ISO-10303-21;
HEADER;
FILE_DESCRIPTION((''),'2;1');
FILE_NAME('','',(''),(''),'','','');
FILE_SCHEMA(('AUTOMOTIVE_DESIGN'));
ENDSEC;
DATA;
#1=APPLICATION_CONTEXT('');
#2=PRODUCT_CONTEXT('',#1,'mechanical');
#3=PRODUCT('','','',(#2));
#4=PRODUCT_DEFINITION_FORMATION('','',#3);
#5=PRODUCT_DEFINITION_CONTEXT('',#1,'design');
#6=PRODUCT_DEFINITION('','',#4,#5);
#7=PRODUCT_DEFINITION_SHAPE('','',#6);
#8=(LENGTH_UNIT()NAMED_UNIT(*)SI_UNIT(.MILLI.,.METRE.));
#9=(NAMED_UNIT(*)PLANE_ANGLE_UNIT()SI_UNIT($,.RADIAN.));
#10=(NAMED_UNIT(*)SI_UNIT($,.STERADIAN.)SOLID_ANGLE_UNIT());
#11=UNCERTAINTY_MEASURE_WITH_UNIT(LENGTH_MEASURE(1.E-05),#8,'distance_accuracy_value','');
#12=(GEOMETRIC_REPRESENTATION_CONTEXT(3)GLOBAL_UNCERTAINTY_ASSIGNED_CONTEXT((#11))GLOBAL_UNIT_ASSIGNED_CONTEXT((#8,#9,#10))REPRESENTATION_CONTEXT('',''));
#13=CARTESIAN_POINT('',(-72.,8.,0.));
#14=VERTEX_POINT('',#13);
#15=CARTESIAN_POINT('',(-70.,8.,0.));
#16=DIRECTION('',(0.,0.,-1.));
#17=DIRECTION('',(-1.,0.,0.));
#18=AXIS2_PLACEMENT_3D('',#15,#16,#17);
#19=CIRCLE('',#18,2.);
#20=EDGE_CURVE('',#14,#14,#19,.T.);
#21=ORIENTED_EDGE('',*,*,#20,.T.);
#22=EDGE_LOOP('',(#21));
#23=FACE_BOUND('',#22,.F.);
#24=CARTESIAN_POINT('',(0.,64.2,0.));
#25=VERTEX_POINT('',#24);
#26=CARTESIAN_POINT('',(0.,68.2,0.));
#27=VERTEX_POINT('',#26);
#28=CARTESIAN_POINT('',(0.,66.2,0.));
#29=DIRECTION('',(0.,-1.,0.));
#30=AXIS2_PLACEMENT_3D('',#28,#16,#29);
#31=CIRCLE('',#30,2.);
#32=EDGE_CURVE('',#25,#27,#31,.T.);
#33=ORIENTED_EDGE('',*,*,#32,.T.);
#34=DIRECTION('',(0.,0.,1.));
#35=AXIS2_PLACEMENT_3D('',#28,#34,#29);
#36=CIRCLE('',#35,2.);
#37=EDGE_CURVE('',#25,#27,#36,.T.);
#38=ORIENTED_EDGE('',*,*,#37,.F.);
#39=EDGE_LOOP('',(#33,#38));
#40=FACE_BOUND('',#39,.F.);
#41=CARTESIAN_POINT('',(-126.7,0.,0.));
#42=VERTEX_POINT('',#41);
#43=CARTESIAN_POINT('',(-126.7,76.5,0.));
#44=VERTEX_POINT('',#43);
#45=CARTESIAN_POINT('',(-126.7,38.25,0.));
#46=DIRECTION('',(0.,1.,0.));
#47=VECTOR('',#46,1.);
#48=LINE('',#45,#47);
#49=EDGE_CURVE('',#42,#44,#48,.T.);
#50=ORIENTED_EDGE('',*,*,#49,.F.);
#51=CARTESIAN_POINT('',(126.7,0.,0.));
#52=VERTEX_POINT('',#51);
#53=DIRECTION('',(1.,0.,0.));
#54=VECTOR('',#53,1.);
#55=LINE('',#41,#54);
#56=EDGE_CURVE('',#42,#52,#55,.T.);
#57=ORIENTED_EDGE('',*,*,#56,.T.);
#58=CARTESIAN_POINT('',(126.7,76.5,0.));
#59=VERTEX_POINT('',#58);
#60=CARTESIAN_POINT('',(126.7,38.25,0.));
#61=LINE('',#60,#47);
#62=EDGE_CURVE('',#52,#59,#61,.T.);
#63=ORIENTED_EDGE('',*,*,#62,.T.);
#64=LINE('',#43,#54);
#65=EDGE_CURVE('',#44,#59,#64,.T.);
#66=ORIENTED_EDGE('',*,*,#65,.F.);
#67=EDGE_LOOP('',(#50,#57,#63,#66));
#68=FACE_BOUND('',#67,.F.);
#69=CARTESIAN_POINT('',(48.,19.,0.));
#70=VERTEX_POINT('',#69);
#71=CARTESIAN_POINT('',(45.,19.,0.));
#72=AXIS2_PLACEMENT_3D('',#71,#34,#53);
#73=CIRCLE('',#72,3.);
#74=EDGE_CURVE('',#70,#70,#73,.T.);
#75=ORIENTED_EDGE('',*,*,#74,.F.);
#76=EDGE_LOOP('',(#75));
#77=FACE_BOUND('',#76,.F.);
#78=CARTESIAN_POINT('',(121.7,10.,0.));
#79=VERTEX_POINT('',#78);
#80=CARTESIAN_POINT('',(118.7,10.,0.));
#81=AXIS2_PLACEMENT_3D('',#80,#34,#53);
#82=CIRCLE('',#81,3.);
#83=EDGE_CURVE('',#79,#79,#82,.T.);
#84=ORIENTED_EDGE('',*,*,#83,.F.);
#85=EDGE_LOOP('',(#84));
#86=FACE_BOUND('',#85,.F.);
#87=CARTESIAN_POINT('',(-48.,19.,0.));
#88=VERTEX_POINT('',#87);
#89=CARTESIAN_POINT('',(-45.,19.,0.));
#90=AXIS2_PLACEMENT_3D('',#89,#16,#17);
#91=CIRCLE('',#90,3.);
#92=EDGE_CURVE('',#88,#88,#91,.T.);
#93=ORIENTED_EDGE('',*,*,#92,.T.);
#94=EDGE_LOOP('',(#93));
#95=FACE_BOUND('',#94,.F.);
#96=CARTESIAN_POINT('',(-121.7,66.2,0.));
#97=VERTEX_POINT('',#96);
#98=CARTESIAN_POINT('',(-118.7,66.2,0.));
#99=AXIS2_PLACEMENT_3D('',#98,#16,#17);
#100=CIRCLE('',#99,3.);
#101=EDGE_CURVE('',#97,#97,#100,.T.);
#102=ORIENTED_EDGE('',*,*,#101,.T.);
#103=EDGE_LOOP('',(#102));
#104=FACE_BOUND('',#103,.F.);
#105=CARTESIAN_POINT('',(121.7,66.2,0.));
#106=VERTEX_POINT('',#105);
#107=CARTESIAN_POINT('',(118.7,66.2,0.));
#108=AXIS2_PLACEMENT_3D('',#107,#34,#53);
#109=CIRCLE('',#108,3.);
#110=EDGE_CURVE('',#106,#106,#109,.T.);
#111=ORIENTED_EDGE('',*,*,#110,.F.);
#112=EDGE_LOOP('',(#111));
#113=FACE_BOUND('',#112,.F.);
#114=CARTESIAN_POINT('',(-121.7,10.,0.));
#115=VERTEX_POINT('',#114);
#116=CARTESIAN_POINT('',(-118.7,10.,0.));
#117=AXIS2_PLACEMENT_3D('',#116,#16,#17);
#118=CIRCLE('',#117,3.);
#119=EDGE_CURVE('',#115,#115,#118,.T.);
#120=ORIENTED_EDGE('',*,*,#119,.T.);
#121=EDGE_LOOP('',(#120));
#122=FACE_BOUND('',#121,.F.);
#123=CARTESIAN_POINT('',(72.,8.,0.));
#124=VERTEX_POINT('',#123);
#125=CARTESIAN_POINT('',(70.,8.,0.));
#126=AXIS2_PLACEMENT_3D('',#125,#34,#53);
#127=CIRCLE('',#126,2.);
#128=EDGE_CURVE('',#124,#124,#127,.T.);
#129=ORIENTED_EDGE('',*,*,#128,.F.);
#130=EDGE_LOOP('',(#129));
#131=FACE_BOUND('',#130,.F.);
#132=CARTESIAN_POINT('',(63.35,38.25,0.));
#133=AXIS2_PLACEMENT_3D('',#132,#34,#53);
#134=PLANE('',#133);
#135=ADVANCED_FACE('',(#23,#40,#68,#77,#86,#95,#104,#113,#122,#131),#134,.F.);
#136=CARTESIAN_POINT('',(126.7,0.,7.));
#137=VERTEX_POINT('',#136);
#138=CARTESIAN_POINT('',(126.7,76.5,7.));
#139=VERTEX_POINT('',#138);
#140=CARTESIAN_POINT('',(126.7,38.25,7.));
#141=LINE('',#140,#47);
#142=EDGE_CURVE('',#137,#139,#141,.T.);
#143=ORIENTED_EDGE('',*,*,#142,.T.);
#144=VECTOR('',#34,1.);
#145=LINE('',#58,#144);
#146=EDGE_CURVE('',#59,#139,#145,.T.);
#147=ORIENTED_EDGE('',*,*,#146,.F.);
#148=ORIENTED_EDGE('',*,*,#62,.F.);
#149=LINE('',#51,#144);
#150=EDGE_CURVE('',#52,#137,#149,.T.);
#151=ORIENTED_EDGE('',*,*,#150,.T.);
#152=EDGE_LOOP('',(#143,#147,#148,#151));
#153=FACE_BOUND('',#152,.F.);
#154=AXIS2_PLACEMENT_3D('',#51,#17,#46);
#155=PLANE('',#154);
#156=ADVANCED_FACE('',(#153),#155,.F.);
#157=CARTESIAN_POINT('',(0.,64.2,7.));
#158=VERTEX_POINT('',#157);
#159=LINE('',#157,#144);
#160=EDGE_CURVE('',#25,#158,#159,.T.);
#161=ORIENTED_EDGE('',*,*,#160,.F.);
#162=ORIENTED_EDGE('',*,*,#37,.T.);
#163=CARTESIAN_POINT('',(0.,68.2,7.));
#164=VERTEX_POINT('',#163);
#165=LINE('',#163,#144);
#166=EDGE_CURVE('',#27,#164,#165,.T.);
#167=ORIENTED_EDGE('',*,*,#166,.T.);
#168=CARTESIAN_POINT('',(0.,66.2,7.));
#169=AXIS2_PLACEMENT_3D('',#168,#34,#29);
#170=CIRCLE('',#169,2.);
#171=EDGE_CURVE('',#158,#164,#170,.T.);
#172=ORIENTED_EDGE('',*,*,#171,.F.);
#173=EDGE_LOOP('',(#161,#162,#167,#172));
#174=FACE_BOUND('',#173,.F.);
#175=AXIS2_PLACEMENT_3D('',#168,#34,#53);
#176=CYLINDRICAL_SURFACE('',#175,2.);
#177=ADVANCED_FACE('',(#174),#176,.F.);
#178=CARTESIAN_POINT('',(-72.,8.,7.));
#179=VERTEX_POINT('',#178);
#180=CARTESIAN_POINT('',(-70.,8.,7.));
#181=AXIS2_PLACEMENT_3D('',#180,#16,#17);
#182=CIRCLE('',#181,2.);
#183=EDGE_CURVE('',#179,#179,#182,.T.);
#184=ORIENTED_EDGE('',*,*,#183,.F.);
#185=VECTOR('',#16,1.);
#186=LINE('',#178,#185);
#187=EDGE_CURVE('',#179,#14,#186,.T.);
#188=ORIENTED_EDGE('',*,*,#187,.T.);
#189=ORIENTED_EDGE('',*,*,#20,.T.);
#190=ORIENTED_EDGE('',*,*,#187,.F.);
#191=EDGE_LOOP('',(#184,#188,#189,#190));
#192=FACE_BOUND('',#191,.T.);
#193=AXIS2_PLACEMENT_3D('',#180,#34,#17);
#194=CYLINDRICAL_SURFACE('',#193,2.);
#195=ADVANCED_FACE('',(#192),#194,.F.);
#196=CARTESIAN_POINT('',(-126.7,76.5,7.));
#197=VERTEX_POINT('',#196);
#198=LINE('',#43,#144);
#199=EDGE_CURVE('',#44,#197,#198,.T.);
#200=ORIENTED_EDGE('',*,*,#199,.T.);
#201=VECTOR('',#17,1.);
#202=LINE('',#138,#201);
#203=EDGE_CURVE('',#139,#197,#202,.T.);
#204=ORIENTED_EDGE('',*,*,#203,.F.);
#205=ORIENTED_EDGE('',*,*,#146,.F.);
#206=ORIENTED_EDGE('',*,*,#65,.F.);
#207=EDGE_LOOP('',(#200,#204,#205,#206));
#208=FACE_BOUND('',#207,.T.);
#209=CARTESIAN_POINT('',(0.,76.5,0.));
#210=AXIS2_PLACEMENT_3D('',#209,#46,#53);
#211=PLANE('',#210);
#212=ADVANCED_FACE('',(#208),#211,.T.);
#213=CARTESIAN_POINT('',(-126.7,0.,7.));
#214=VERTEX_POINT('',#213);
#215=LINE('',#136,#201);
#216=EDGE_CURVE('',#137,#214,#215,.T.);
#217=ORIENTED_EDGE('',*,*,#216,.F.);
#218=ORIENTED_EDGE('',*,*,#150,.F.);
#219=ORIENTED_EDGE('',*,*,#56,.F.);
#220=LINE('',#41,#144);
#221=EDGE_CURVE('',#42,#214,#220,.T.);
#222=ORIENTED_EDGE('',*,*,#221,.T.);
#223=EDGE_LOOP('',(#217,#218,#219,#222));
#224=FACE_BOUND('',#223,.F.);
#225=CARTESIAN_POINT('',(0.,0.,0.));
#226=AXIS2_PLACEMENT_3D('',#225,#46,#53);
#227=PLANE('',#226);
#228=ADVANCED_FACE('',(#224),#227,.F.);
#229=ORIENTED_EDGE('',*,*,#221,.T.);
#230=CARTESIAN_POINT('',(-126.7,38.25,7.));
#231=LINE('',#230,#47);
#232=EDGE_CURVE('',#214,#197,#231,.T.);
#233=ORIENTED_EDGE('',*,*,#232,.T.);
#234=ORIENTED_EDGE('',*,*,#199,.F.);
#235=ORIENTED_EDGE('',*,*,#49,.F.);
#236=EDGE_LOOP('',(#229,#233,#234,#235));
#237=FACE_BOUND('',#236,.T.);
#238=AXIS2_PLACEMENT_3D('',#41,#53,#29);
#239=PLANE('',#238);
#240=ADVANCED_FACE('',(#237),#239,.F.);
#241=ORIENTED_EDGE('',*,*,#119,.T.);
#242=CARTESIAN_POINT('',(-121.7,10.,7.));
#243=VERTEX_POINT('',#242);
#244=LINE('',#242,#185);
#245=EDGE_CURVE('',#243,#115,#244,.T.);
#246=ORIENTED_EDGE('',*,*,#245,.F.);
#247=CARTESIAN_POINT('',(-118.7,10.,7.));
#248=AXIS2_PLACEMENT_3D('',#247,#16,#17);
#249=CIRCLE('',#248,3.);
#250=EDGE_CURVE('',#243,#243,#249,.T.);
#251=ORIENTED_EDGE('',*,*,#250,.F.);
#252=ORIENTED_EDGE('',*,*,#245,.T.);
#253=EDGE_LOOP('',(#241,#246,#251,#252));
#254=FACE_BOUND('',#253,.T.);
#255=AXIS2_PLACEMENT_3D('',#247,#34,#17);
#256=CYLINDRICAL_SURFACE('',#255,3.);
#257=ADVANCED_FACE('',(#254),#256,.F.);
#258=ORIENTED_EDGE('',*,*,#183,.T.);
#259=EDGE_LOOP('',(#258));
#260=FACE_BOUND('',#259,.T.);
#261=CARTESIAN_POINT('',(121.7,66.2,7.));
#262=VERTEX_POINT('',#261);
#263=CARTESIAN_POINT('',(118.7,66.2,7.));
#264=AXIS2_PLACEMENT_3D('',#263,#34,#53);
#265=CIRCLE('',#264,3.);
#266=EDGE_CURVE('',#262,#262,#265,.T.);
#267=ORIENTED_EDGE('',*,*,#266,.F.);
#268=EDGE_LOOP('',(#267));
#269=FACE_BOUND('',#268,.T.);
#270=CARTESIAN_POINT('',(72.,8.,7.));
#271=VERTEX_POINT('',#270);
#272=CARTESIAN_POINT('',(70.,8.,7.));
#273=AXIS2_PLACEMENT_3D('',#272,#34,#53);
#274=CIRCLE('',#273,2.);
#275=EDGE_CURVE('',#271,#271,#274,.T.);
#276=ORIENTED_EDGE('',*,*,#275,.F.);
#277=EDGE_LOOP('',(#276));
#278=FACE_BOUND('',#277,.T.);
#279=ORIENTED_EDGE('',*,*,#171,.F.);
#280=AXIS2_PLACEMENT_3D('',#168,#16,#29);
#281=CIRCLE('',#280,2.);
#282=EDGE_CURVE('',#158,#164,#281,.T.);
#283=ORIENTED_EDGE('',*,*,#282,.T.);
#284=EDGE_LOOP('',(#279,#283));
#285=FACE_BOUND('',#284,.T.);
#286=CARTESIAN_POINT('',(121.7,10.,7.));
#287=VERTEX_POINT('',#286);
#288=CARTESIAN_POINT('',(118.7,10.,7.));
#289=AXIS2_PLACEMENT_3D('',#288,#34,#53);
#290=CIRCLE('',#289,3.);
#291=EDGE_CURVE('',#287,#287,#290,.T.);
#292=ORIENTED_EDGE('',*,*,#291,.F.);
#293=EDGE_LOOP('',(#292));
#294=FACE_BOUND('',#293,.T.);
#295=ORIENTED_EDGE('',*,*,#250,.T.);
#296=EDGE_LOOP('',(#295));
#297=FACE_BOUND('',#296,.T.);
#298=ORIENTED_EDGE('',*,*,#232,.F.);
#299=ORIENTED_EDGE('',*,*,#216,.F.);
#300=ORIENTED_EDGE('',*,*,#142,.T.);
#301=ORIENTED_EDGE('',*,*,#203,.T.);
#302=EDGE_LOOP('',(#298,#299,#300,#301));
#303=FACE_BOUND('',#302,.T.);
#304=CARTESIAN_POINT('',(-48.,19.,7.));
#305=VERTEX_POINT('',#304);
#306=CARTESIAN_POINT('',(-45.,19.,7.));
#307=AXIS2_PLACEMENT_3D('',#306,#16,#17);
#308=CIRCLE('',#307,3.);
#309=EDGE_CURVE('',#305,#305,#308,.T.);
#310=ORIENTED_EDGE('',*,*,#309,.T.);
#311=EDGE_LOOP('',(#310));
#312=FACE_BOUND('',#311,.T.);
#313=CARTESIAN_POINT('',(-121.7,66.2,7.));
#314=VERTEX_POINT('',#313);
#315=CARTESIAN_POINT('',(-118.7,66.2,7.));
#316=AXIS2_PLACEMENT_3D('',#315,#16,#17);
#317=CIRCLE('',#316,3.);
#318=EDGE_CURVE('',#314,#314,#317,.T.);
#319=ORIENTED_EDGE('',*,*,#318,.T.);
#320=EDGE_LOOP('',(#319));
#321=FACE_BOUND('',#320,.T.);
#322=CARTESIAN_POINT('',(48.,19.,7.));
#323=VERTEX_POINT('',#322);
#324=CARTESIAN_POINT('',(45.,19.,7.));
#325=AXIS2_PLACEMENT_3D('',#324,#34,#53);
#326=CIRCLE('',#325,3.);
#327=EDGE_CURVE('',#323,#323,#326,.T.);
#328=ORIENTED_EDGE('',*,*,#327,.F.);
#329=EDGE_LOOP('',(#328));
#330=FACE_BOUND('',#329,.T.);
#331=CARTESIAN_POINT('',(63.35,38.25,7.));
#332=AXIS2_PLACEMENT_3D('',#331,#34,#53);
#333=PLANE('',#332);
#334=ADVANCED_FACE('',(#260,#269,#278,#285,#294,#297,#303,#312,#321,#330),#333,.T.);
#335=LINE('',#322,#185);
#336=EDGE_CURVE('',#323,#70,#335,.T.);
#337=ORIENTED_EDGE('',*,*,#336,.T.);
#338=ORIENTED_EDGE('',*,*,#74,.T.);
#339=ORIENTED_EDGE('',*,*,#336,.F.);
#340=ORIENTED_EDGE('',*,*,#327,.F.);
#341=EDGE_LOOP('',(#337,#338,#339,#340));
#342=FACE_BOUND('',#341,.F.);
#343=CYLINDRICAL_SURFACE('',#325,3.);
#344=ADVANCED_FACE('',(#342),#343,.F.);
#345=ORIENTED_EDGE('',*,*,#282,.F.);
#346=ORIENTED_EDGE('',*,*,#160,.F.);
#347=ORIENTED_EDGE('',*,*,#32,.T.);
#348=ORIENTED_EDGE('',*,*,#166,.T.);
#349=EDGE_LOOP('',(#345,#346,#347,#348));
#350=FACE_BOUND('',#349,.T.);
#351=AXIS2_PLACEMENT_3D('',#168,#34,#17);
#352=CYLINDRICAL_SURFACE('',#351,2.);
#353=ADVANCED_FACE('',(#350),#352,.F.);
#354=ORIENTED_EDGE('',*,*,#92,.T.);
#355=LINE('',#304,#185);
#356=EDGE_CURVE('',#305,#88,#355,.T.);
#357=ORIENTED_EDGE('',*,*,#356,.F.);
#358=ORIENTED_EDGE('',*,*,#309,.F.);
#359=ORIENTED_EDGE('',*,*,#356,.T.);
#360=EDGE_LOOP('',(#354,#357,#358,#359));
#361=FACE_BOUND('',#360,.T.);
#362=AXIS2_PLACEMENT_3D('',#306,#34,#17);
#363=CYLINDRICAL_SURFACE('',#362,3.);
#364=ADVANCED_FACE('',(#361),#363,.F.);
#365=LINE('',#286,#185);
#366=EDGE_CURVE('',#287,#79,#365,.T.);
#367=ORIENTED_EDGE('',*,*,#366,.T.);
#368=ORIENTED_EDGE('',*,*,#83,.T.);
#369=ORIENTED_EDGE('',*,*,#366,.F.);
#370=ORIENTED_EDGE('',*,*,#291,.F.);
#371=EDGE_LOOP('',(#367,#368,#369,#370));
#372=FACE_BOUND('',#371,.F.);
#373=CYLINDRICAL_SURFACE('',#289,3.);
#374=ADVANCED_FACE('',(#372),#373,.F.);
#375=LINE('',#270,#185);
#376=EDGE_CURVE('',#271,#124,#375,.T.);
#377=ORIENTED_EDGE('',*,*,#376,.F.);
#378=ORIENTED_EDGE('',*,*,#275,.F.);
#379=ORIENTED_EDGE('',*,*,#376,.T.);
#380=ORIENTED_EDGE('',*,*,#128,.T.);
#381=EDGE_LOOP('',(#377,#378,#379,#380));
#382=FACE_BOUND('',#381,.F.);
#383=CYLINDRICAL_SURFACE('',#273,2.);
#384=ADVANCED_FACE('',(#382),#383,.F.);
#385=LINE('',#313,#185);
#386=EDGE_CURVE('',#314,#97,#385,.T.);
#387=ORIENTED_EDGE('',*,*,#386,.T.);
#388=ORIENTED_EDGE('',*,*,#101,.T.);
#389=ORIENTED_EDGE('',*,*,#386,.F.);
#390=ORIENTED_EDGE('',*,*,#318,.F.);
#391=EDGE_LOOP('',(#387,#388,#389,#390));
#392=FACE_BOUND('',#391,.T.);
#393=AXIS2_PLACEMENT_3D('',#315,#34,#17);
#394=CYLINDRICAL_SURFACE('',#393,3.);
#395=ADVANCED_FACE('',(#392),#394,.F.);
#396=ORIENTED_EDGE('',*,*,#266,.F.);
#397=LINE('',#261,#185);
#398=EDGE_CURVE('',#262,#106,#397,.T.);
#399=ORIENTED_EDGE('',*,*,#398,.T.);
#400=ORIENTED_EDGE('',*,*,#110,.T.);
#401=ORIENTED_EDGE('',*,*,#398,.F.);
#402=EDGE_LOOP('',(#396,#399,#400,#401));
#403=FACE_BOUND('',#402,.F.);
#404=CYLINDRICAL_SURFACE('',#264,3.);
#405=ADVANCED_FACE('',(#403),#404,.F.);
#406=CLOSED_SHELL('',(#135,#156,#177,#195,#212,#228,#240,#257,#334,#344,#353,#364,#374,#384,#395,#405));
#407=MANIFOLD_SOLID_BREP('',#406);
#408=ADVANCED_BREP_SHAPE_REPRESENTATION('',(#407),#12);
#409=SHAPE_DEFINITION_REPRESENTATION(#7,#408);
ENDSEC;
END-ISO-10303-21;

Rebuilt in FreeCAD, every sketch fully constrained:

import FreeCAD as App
import Part
import Sketcher

V = App.Vector
Q = App.Units.Quantity

doc = App.newDocument("Part")
body = doc.addObject("PartDesign::Body", "Body")

# Sketch on XY plane
sketch1 = doc.addObject("Sketcher::SketchObject", "Sketch")
body.addObject(sketch1)
sketch1.AttachmentSupport = (doc.XY_Plane, [""])
sketch1.MapMode = "FlatFace"
sketch1.addGeometry(Part.LineSegment(V(0, 76, 0), V(0, 0, 0)), False)
sketch1.addGeometry(Part.LineSegment(V(0, 0, 0), V(127, 0, 0)), False)
sketch1.addGeometry(Part.LineSegment(V(127, 0, 0), V(127, 76, 0)), False)
sketch1.addGeometry(Part.LineSegment(V(127, 76, 0), V(0, 76, 0)), False)
sketch1.addConstraint(Sketcher.Constraint("Coincident", 0, 2, 1, 1))
sketch1.addConstraint(Sketcher.Constraint("Coincident", 1, 2, 2, 1))
sketch1.addConstraint(Sketcher.Constraint("Coincident", 2, 2, 3, 1))
sketch1.addConstraint(Sketcher.Constraint("Coincident", 3, 2, 0, 1))
sketch1.addConstraint(Sketcher.Constraint("Vertical", 0))
sketch1.addConstraint(Sketcher.Constraint("Horizontal", 1))
sketch1.addConstraint(Sketcher.Constraint("Vertical", 2))
sketch1.addConstraint(Sketcher.Constraint("Horizontal", 3))
sketch1.addConstraint(Sketcher.Constraint("Coincident", 0, 2, -1, 1))
sketch1.addConstraint(Sketcher.Constraint("DistanceX", 1, 1, 1, 2, Q("126.7 mm")))
sketch1.addConstraint(Sketcher.Constraint("DistanceY", 0, 2, 0, 1, Q("76.5 mm")))
pad1 = doc.addObject("PartDesign::Pad", "Pad")
body.addObject(pad1)
pad1.Profile = sketch1
pad1.Length = 7

# Sketch on XY plane
sketch2 = doc.addObject("Sketcher::SketchObject", "Sketch001")
body.addObject(sketch2)
sketch2.AttachmentSupport = (doc.XY_Plane, [""])
sketch2.MapMode = "FlatFace"
sketch2.AttachmentOffset = App.Placement(V(0, 0, 7), App.Rotation())
sketch2.addGeometry(Part.Circle(V(0, 66.2, 0), V(0, 0, 1), 2), False)
sketch2.addGeometry(Part.Circle(V(70, 8, 0), V(0, 0, 1), 2), False)
sketch2.addGeometry(Part.Circle(V(118.7, 66.2, 0), V(0, 0, 1), 3), False)
sketch2.addGeometry(Part.Circle(V(118.7, 10, 0), V(0, 0, 1), 3), False)
sketch2.addGeometry(Part.Circle(V(45, 19, 0), V(0, 0, 1), 3), False)
sketch2.addConstraint(Sketcher.Constraint("Equal", 0, 1))
sketch2.addConstraint(Sketcher.Constraint("Equal", 2, 3))
sketch2.addConstraint(Sketcher.Constraint("Equal", 3, 4))
sketch2.addConstraint(Sketcher.Constraint("PointOnObject", 0, 3, -2))
sketch2.addConstraint(Sketcher.Constraint("Horizontal", 0, 3, 2, 3))
sketch2.addConstraint(Sketcher.Constraint("Vertical", 2, 3, 3, 3))
sketch2.addConstraint(Sketcher.Constraint("Diameter", 0, Q("4 mm")))
sketch2.addConstraint(Sketcher.Constraint("Diameter", 2, Q("6 mm")))
sketch2.addConstraint(Sketcher.Constraint("DistanceX", -1, 1, 1, 3, Q("70 mm")))
sketch2.addConstraint(Sketcher.Constraint("DistanceY", -1, 1, 1, 3, Q("8 mm")))
sketch2.addConstraint(Sketcher.Constraint("DistanceY", -1, 1, 3, 3, Q("10 mm")))
sketch2.addConstraint(Sketcher.Constraint("DistanceX", -1, 1, 4, 3, Q("45 mm")))
sketch2.addConstraint(Sketcher.Constraint("DistanceY", -1, 1, 4, 3, Q("19 mm")))
sketch2.addConstraint(Sketcher.Constraint("DistanceY", -1, 1, 0, 3, Q("66.2 mm")))
sketch2.addConstraint(Sketcher.Constraint("DistanceX", -1, 1, 2, 3, Q("118.7 mm")))
pocket1 = doc.addObject("PartDesign::Pocket", "Pocket")
body.addObject(pocket1)
pocket1.Profile = sketch2
pocket1.Length = 50
body2 = doc.addObject("PartDesign::Body", "Body001")
doc.recompute()

mirroring = doc.addObject("Part::Mirroring", "Mirroring")
mirroring.Source = body
mirroring.Base = V(0, 0, 0)
mirroring.Normal = V(1, 0, 0)
body2.BaseFeature = mirroring
doc.recompute()

boolean = doc.addObject("PartDesign::Boolean", "Boolean")
body2.addObject(boolean)
boolean.Type = "Fuse"
boolean.addObjects([body])
mirroring.Visibility = False

doc.recompute()
